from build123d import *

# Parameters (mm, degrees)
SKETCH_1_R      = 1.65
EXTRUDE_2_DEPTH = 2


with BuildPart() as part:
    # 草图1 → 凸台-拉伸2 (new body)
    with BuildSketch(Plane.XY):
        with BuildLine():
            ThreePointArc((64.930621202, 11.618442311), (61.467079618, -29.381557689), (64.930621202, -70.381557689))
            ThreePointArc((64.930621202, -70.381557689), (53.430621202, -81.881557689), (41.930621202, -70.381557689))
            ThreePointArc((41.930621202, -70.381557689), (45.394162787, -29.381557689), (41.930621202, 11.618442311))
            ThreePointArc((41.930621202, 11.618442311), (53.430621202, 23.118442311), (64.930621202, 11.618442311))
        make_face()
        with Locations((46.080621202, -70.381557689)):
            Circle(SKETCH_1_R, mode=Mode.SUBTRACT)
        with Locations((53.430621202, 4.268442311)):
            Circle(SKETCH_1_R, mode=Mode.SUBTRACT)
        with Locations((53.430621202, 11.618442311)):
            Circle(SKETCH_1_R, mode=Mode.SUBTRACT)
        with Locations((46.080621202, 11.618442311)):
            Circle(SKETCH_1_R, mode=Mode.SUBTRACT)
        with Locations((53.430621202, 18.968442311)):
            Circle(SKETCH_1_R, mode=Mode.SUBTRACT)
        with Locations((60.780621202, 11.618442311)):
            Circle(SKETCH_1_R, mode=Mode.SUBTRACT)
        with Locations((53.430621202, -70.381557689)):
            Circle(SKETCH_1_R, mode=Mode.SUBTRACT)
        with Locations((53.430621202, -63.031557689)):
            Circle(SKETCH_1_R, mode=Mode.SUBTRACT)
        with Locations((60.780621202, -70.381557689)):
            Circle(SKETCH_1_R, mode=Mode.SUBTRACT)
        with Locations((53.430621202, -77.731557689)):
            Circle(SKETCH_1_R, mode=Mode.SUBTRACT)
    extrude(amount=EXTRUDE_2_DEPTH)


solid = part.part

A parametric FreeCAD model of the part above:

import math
import FreeCAD as App
import Part
import Sketcher

V = App.Vector

doc = App.newDocument("Part")
params = doc.addObject("Spreadsheet::Sheet", "Params")
for row, (alias, value) in enumerate([
    ("sketch1_diameter", "3.3 mm"),
    ("sketch1_radius", "11.5 mm"),
    ("pad1_length", "2 mm"),
], start=1):
    params.set(f"A{row}", alias)
    params.set(f"B{row}", "=" + value)
    params.setAlias(f"B{row}", alias)

body = doc.addObject("PartDesign::Body", "Body")

sketch1 = body.newObject("Sketcher::SketchObject", "Sketch")
sketch1.AttachmentSupport = (doc.getObject("XY_Plane"), [""])
sketch1.MapMode = "FlatFace"
sketch1.addGeometry([
    Part.ArcOfCircle(Part.Circle(V(305.9, -29.4, 0), V(0, 0, 1), 244.4), math.radians(170.34), math.radians(189.66)),
    Part.ArcOfCircle(Part.Circle(V(53.4, 11.6, 0), V(0, 0, 1), 11.5), math.radians(0), math.radians(180)),
    Part.ArcOfCircle(Part.Circle(V(-199, -29.4, 0), V(0, 0, 1), 244.4), math.radians(-9.66), math.radians(9.66)),
    Part.ArcOfCircle(Part.Circle(V(53.4, -70.4, 0), V(0, 0, 1), 11.5), math.radians(180), math.radians(360)),
    Part.Circle(V(60.8, -70.4, 0), V(0, 0, 1), 1.6),
    Part.Circle(V(53.4, -77.7, 0), V(0, 0, 1), 1.6),
    Part.Circle(V(53.4, -70.4, 0), V(0, 0, 1), 1.6),
    Part.Circle(V(53.4, -63, 0), V(0, 0, 1), 1.6),
    Part.Circle(V(46.1, -70.4, 0), V(0, 0, 1), 1.6),
    Part.Circle(V(60.8, 11.6, 0), V(0, 0, 1), 1.6),
    Part.Circle(V(53.4, 4.3, 0), V(0, 0, 1), 1.6),
    Part.Circle(V(53.4, 11.6, 0), V(0, 0, 1), 1.6),
    Part.Circle(V(53.4, 19, 0), V(0, 0, 1), 1.6),
    Part.Circle(V(46.1, 11.6, 0), V(0, 0, 1), 1.6),
], False)
sketch1.addConstraint([
    Sketcher.Constraint("Coincident", 0, 1, 1, 1),
    Sketcher.Constraint("Coincident", 1, 2, 2, 2),
    Sketcher.Constraint("Coincident", 2, 1, 3, 1),
    Sketcher.Constraint("Coincident", 3, 2, 0, 2),
    Sketcher.Constraint("Coincident", 6, 3, 3, 3),
    Sketcher.Constraint("Coincident", 11, 3, 1, 3),
    Sketcher.Constraint("Equal", 0, 2),
    Sketcher.Constraint("Equal", 1, 3),
    Sketcher.Constraint("Equal", 4, 5),
    Sketcher.Constraint("Equal", 5, 6),
    Sketcher.Constraint("Equal", 6, 7),
    Sketcher.Constraint("Equal", 7, 8),
    Sketcher.Constraint("Equal", 8, 9),
    Sketcher.Constraint("Equal", 9, 10),
    Sketcher.Constraint("Equal", 10, 11),
    Sketcher.Constraint("Equal", 11, 12),
    Sketcher.Constraint("Equal", 12, 13),
    Sketcher.Constraint("Horizontal", 0, 3, 2, 3),
    Sketcher.Constraint("Horizontal", 3, 3, 4, 3),
    Sketcher.Constraint("Horizontal", 6, 3, 8, 3),
    Sketcher.Constraint("Horizontal", 1, 3, 9, 3),
    Sketcher.Constraint("Horizontal", 11, 3, 13, 3),
    Sketcher.Constraint("Horizontal", 13, 3, 0, 1),
    Sketcher.Constraint("Horizontal", 0, 1, 1, 2),
    Sketcher.Constraint("Horizontal", 8, 3, 2, 1),
    Sketcher.Constraint("Horizontal", 2, 1, 3, 2),
    Sketcher.Constraint("Vertical", 3, 3, 5, 3),
    Sketcher.Constraint("Vertical", 6, 3, 7, 3),
    Sketcher.Constraint("Vertical", 4, 3, 9, 3),
    Sketcher.Constraint("Vertical", 7, 3, 10, 3),
    Sketcher.Constraint("Vertical", 11, 3, 12, 3),
    Sketcher.Constraint("Vertical", 8, 3, 13, 3),
    Sketcher.Constraint("Diameter", 4, 3.3),
    Sketcher.Constraint("Radius", 1, 11.5),
    Sketcher.Constraint("DistanceY", 0, 3, 1, 3, 41.0),
    Sketcher.Constraint("DistanceY", 7, 3, 12, 3, 82.0),
    Sketcher.Constraint("DistanceY", 5, 3, 7, 3, 14.7),
    Sketcher.Constraint("DistanceX", 8, 3, 4, 3, 14.7),
    Sketcher.Constraint("DistanceY", 7, 3, 10, 3, 67.3),
    Sketcher.Constraint("DistanceX", 3, 3, 4, 3, 7.35),
    Sketcher.Constraint("DistanceY", 5, 3, 3, 3, 7.35),
    Sketcher.Constraint("Radius", 0, 244.402453),
    Sketcher.Constraint("DistanceX", -1, 1, 1, 3, 53.430621),
    Sketcher.Constraint("DistanceY", 0, 3, -1, 1, 29.381558),
])
sketch1.setExpression("Constraints[32]", "Params.sketch1_diameter")
sketch1.setExpression("Constraints[33]", "Params.sketch1_radius")
pad1 = body.newObject("PartDesign::Pad", "Pad")
pad1.Profile = sketch1
pad1.setExpression("Length", "Params.pad1_length")

doc.recompute()
